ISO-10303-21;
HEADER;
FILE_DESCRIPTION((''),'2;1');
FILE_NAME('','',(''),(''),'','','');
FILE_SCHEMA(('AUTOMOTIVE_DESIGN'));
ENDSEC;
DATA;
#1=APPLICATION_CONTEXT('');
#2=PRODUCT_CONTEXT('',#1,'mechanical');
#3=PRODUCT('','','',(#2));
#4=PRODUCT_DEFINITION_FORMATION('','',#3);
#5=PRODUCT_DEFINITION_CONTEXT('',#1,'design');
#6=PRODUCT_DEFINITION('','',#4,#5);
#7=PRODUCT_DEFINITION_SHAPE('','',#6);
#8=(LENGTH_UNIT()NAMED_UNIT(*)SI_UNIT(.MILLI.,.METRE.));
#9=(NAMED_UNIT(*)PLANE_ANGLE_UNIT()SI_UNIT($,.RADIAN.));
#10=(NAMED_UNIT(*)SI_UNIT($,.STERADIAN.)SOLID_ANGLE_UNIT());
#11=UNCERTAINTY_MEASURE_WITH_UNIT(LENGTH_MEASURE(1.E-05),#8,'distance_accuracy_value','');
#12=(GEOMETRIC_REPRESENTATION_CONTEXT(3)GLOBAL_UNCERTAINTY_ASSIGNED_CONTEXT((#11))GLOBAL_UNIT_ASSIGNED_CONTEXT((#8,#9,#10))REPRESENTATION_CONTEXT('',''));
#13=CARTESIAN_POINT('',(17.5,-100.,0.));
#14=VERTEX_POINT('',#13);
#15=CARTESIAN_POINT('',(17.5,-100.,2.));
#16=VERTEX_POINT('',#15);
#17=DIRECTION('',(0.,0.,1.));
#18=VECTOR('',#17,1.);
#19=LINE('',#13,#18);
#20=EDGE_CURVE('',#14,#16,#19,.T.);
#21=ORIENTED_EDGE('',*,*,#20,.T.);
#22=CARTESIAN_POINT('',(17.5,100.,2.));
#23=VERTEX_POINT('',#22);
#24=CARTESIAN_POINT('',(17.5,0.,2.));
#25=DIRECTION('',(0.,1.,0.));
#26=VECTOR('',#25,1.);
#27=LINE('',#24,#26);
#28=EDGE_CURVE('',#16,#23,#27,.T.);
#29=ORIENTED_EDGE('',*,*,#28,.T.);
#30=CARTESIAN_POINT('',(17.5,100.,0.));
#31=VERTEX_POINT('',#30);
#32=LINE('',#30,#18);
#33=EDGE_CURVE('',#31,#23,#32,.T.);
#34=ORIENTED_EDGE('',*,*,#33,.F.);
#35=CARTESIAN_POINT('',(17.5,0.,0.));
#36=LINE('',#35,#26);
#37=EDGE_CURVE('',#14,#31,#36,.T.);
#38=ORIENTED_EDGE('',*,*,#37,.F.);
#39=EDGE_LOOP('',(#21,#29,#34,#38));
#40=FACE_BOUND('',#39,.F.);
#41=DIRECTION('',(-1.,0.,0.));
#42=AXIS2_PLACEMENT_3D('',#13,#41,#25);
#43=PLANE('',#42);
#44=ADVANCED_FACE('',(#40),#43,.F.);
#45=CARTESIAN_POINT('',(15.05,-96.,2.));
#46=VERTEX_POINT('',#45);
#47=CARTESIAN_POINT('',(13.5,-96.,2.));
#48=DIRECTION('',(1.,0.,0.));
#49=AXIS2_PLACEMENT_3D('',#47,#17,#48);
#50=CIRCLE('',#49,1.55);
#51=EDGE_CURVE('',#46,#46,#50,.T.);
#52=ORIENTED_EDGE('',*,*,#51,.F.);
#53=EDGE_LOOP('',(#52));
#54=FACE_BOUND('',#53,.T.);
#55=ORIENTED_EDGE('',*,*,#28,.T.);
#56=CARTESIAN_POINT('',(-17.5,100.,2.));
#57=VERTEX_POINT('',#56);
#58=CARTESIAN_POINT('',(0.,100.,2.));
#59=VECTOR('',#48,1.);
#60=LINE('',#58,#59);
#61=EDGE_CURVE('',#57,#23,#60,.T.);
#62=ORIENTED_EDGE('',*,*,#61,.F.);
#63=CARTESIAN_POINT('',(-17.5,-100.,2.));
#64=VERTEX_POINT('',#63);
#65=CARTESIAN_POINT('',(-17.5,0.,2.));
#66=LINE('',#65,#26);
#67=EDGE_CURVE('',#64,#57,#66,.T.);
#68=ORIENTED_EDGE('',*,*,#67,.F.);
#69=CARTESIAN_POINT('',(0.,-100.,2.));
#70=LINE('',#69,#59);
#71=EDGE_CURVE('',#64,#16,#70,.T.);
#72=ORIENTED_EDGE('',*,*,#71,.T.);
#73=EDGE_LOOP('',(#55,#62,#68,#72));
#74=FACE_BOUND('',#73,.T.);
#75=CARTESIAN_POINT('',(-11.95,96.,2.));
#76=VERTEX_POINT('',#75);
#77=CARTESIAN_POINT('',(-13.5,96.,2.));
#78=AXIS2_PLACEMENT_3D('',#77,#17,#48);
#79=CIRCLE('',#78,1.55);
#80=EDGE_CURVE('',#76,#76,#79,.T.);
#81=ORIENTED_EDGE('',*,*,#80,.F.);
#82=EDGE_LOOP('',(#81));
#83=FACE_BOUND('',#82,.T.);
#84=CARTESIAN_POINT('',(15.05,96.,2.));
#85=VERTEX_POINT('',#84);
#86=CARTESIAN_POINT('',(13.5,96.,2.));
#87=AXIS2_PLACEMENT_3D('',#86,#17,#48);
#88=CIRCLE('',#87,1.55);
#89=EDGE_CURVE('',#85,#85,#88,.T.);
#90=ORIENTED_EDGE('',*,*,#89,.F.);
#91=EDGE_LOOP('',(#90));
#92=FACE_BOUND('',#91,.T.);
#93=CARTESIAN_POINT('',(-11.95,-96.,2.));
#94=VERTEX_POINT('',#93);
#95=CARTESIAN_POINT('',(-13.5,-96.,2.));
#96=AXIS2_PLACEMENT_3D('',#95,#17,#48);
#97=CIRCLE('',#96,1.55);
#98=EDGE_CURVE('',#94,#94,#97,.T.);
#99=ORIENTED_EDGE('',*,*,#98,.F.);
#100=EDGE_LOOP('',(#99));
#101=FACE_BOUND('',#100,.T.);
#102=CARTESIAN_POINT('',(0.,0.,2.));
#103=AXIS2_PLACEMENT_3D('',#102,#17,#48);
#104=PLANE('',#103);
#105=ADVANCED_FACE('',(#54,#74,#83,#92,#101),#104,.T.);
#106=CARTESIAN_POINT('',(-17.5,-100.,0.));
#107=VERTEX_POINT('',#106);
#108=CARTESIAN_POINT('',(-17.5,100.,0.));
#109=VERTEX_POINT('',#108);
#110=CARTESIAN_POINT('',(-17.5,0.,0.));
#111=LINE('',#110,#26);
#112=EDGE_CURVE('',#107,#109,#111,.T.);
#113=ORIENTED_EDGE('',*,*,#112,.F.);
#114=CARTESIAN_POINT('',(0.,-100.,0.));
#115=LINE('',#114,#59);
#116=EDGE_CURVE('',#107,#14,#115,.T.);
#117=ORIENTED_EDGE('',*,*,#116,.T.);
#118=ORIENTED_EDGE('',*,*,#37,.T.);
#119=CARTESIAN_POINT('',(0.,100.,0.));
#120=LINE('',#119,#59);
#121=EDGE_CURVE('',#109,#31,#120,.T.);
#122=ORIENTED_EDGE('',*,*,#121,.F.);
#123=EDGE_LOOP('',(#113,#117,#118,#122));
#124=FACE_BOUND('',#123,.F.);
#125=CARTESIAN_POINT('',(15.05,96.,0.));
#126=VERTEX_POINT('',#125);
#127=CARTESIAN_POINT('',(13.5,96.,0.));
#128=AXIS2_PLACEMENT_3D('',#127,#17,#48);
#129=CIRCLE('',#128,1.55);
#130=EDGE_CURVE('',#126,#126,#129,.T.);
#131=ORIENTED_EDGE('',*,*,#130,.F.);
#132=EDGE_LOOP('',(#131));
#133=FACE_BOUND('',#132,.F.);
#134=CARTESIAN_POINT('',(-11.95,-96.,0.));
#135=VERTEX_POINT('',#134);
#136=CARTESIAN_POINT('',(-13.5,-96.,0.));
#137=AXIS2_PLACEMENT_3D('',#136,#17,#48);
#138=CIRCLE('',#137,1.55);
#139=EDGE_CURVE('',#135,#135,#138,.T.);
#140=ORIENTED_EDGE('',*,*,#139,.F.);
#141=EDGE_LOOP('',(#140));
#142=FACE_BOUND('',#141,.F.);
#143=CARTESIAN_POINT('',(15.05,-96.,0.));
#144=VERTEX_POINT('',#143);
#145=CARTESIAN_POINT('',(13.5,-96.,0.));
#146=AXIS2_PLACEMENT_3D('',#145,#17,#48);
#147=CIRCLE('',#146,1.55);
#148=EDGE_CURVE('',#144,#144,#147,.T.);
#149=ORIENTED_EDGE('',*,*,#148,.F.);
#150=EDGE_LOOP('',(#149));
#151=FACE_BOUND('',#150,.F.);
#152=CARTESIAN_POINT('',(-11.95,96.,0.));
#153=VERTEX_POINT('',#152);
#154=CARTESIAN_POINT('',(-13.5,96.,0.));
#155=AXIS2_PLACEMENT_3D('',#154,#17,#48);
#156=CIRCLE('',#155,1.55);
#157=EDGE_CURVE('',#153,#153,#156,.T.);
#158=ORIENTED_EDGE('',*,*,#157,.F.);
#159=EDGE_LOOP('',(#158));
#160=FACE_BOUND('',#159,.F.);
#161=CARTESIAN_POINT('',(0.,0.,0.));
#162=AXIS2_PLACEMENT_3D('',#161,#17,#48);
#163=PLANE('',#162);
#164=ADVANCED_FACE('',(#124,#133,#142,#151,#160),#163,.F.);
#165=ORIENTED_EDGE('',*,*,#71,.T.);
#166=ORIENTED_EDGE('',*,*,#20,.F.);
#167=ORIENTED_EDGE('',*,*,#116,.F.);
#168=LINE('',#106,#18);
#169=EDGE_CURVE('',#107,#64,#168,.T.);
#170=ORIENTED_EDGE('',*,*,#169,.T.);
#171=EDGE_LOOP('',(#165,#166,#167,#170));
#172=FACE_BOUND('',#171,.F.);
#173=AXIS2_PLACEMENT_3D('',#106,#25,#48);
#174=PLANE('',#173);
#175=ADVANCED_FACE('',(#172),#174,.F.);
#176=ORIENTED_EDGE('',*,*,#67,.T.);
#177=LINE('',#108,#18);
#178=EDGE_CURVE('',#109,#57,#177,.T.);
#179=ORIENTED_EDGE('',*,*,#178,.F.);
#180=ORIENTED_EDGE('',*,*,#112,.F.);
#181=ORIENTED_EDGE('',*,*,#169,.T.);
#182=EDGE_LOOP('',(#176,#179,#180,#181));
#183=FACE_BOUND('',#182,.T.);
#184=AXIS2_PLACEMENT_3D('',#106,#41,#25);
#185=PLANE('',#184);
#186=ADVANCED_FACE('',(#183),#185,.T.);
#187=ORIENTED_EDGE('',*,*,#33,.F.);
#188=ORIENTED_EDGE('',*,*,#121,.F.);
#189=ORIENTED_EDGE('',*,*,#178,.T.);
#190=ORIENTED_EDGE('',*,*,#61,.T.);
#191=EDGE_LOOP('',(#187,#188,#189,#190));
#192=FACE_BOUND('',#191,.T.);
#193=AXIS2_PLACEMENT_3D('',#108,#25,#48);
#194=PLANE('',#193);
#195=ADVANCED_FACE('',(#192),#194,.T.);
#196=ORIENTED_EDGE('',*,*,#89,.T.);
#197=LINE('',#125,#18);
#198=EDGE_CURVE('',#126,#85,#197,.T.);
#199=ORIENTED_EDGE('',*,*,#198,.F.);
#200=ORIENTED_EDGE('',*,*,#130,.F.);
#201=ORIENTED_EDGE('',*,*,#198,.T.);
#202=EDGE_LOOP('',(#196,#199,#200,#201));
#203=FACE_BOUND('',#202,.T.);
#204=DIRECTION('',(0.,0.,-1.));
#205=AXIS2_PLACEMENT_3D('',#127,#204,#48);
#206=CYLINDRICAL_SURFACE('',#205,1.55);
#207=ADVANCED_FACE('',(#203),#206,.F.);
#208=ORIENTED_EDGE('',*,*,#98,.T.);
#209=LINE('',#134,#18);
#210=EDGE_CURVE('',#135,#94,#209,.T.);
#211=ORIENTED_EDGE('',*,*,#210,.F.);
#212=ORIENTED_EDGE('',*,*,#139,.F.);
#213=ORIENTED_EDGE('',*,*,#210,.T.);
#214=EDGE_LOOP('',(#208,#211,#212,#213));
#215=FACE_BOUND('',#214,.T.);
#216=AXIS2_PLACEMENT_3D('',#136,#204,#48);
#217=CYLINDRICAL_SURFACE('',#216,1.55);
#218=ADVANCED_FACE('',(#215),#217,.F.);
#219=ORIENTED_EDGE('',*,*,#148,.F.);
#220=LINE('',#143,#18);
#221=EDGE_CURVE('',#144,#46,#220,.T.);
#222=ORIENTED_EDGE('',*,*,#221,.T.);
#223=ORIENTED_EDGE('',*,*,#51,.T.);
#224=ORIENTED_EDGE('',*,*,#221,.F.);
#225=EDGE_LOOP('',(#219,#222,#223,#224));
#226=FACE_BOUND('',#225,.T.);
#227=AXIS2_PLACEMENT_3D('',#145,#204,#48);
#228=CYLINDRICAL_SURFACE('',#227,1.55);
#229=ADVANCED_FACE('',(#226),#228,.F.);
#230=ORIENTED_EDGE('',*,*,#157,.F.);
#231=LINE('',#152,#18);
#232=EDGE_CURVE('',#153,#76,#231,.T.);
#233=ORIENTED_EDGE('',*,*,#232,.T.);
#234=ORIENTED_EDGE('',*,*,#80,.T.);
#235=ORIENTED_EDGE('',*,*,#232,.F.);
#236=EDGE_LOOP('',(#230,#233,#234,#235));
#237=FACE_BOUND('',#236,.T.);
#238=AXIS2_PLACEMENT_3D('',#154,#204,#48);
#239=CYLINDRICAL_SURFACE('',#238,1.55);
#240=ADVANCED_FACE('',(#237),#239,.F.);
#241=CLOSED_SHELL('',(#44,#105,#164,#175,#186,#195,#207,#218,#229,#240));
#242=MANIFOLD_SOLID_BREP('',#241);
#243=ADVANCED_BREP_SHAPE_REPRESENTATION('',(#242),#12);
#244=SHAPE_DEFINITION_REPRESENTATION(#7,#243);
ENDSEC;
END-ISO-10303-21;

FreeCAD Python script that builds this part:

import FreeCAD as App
import Part
import Sketcher
from FreeCAD import Vector
Q = App.Units.Quantity

doc = App.newDocument("Part")
body = doc.addObject("PartDesign::Body", "Body")

# Sketch on XY plane
sketch1 = body.newObject("Sketcher::SketchObject", "Sketch")
sketch1.AttachmentSupport = (doc.getObject("XY_Plane"), [""])
sketch1.MapMode = "FlatFace"
sketch1.addGeometry([
    Part.LineSegment(Vector(-17.5, 100, 0), Vector(-17.5, -100, 0)),  # 0
    Part.LineSegment(Vector(-17.5, -100, 0), Vector(17.5, -100, 0)),  # 1
    Part.LineSegment(Vector(17.5, -100, 0), Vector(17.5, 100, 0)),  # 2
    Part.LineSegment(Vector(17.5, 100, 0), Vector(-17.5, 100, 0)),  # 3
    Part.Circle(Vector(-13.5, -96, 0), Vector(0, 0, 1), 1.55),  # 4
    Part.Circle(Vector(13.5, -96, 0), Vector(0, 0, 1), 1.55),  # 5
    Part.Circle(Vector(-13.5, 96, 0), Vector(0, 0, 1), 1.55),  # 6
    Part.Circle(Vector(13.5, 96, 0), Vector(0, 0, 1), 1.55),  # 7
], False)
sketch1.addConstraint([
    Sketcher.Constraint("Coincident", 0, 2, 1, 1),
    Sketcher.Constraint("Coincident", 1, 2, 2, 1),
    Sketcher.Constraint("Coincident", 2, 2, 3, 1),
    Sketcher.Constraint("Coincident", 3, 2, 0, 1),
    Sketcher.Constraint("Vertical", 0),
    Sketcher.Constraint("Horizontal", 1),
    Sketcher.Constraint("Vertical", 2),
    Sketcher.Constraint("Horizontal", 3),
    Sketcher.Constraint("Equal", 4, 5),
    Sketcher.Constraint("Equal", 5, 6),
    Sketcher.Constraint("Equal", 6, 7),
    Sketcher.Constraint("Symmetric", 5, 3, 6, 3, -1, 1),
    Sketcher.Constraint("Symmetric", 4, 3, 7, 3, -1, 1),
    Sketcher.Constraint("Symmetric", 0, 2, 2, 2, -1, 1),
    Sketcher.Constraint("Symmetric", 4, 3, 5, 3, -2),
    Sketcher.Constraint("Diameter", 4, Q("3.1 mm")),
    Sketcher.Constraint("DistanceX", 1, 1, 1, 2, Q("35 mm")),
    Sketcher.Constraint("DistanceY", 0, 2, 0, 1, Q("200 mm")),
    Sketcher.Constraint("DistanceY", 4, 3, -1, 1, Q("96 mm")),
    Sketcher.Constraint("DistanceX", 4, 3, 5, 3, Q("27 mm")),
])
pad1 = body.newObject("PartDesign::Pad", "Pad")
pad1.Profile = sketch1
pad1.Length = 2

doc.recompute()
